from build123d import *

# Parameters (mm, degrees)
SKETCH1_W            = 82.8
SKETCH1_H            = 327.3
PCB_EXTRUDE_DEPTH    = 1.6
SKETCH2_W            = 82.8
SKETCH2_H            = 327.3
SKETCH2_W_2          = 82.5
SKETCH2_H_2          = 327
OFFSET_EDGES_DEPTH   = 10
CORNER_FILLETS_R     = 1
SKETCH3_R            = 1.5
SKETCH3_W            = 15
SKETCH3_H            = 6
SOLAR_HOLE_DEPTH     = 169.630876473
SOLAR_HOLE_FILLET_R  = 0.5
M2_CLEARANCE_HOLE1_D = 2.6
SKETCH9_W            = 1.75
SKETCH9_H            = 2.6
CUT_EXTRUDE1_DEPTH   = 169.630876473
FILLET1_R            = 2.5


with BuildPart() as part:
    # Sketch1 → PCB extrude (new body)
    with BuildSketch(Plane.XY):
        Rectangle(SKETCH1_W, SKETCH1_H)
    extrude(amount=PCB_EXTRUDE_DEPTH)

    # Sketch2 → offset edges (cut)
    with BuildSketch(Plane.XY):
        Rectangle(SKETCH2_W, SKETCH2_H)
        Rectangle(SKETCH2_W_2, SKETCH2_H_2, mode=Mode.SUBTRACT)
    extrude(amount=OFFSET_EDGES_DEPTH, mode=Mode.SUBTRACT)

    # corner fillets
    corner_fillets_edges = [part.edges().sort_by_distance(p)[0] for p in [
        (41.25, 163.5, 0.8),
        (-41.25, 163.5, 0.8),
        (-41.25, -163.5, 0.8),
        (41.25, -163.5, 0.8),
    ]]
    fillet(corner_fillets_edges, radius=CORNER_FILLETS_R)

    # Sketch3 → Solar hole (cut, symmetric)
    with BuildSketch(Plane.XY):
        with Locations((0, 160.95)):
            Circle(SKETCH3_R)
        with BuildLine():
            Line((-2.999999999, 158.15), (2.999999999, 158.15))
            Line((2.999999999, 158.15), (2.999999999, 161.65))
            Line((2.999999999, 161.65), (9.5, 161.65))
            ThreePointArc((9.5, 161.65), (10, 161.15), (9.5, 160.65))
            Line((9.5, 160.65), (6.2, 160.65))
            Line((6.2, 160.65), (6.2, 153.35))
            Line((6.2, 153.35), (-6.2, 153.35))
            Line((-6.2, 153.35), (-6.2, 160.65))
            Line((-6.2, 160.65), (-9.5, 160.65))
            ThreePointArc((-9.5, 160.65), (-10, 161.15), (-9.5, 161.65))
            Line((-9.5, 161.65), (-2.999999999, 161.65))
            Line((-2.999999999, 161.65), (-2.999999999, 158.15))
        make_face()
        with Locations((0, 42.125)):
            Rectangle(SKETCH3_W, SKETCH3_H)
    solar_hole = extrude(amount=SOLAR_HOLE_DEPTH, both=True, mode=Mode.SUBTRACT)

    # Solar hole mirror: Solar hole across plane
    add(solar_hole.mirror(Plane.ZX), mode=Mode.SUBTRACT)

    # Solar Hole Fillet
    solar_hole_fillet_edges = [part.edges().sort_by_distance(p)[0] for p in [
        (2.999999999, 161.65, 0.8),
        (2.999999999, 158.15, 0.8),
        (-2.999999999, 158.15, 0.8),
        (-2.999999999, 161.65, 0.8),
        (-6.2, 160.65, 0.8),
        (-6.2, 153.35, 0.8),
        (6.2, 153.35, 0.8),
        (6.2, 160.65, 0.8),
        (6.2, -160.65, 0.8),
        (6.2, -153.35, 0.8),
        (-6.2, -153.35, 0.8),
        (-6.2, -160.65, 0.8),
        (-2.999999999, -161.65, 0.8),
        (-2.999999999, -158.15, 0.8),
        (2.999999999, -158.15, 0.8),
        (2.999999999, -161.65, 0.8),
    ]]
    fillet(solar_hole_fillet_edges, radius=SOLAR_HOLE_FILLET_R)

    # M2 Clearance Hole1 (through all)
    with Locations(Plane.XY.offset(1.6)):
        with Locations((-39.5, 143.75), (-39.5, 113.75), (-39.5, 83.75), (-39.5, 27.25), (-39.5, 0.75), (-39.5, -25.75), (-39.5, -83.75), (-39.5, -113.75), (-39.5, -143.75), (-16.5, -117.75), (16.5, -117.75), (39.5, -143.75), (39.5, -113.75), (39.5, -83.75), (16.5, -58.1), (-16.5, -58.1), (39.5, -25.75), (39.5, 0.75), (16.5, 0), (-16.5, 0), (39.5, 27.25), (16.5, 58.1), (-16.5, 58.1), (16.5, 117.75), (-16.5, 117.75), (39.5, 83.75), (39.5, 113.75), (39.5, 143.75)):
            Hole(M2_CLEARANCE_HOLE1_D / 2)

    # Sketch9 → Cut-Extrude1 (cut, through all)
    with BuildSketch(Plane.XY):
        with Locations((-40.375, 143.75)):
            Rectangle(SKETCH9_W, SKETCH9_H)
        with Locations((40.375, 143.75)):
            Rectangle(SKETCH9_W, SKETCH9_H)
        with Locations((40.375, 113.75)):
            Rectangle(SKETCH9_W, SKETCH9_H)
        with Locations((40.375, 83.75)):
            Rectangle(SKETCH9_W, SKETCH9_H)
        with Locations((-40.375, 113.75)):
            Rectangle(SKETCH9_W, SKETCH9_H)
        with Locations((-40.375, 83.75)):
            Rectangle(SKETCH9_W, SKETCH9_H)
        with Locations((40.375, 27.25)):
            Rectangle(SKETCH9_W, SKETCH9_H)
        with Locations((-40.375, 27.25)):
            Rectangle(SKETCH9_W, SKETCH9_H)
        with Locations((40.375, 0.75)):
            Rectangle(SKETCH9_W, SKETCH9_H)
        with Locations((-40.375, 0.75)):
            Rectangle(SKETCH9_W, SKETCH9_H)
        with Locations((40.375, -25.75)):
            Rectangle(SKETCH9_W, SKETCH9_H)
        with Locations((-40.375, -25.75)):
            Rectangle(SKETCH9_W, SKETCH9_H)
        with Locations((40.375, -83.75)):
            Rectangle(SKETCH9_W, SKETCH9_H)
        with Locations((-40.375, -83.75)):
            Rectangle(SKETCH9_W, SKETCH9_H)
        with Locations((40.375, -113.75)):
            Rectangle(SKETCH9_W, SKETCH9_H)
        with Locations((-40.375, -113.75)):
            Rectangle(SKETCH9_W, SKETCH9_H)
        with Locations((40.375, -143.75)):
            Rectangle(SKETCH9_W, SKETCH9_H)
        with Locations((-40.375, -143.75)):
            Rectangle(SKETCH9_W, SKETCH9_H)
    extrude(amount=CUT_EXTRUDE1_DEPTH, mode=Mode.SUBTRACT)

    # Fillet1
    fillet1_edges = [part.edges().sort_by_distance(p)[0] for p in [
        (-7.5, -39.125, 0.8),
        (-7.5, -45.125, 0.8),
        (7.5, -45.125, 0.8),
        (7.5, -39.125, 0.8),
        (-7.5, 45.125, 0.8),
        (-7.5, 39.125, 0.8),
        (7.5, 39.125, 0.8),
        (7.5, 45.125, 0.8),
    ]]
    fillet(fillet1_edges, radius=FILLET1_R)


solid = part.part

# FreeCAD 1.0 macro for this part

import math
import FreeCAD as App
import Part
import Sketcher
from FreeCAD import Vector
Q = App.Units.Quantity


def edges_at(feature, points):
    """Names of the edges that pass closest to the given points."""
    edges = feature.Shape.Edges
    near = lambda p: min(range(len(edges)), key=lambda i: edges[i].distToShape(Part.Vertex(*p))[0])
    return sorted({f"Edge{near(p) + 1}" for p in points})


def add_polygon(sketch, points):
    """Adds a closed chain of lines whose ends are joined by coincident constraints."""
    first, n = sketch.GeometryCount, len(points)
    for a, b in zip(points, points[1:] + points[:1]):
        sketch.addGeometry(Part.LineSegment(App.Vector(*a, 0), App.Vector(*b, 0)), False)
    for i in range(n):
        sketch.addConstraint(Sketcher.Constraint("Coincident", first + i, 2, first + (i + 1) % n, 1))

doc = App.newDocument("Part")
body = doc.addObject("PartDesign::Body", "Body")

# Sketch on XY plane
sketch1 = body.newObject("Sketcher::SketchObject", "Sketch")
sketch1.AttachmentSupport = (doc.getObject("XY_Plane"), [""])
sketch1.MapMode = "FlatFace"
add_polygon(sketch1, [(-41, 164), (-41, -164), (41, -164), (41, 164)])  # lines 0-3
sketch1.addConstraint([
    Sketcher.Constraint("Vertical", 0),
    Sketcher.Constraint("Horizontal", 1),
    Sketcher.Constraint("Vertical", 2),
    Sketcher.Constraint("Horizontal", 3),
    Sketcher.Constraint("Symmetric", 0, 2, 2, 2, -1, 1),
    Sketcher.Constraint("DistanceX", 1, 1, 1, 2, Q("82.8 mm")),
    Sketcher.Constraint("DistanceY", 0, 2, 0, 1, Q("327.3 mm")),
])
pad1 = body.newObject("PartDesign::Pad", "Pad")
pad1.Profile = sketch1
pad1.Length = 1.6

# Sketch on XY plane
sketch2 = body.newObject("Sketcher::SketchObject", "Sketch001")
sketch2.AttachmentSupport = (doc.getObject("XY_Plane"), [""])
sketch2.MapMode = "FlatFace"
add_polygon(sketch2, [(-41, 164), (-41, -164), (41, -164), (41, 164)])  # lines 0-3
add_polygon(sketch2, [(41, -164), (-41, -164), (-41, 164), (41, 164)])  # lines 4-7
sketch2.addConstraint([
    Sketcher.Constraint("Vertical", 0),
    Sketcher.Constraint("Horizontal", 1),
    Sketcher.Constraint("Vertical", 2),
    Sketcher.Constraint("Horizontal", 3),
    Sketcher.Constraint("Horizontal", 4),
    Sketcher.Constraint("Vertical", 5),
    Sketcher.Constraint("Horizontal", 6),
    Sketcher.Constraint("Vertical", 7),
    Sketcher.Constraint("Symmetric", 0, 2, 2, 2, -1, 1),
    Sketcher.Constraint("Symmetric", 4, 2, 6, 2, -1, 1),
    Sketcher.Constraint("DistanceY", 5, 1, 5, 2, Q("327 mm")),
    Sketcher.Constraint("DistanceX", 1, 1, 1, 2, Q("82.8 mm")),
    Sketcher.Constraint("DistanceX", 4, 2, 4, 1, Q("82.5 mm")),
    Sketcher.Constraint("DistanceY", 0, 2, 0, 1, Q("327.3 mm")),
])
pocket1 = body.newObject("PartDesign::Pocket", "Pocket")
pocket1.Profile = sketch2
pocket1.Length = 10
pocket1.Reversed = True
doc.recompute()

fillet = body.newObject("PartDesign::Fillet", "Fillet")
fillet.Base = (pocket1, edges_at(pocket1, [
    (41.25, 163.5, 0.8),
    (-41.25, 163.5, 0.8),
    (-41.25, -163.5, 0.8),
    (41.25, -163.5, 0.8),
]))
fillet.Radius = 1

# Sketch on XY plane
sketch3 = body.newObject("Sketcher::SketchObject", "Sketch002")
sketch3.AttachmentSupport = (doc.getObject("XY_Plane"), [""])
sketch3.MapMode = "FlatFace"
sketch3.addGeometry(Part.Circle(Vector(0, 160.9, 0), Vector(0, 0, 1), 1.5), False)  # 0
sketch3.addGeometry(Part.LineSegment(Vector(3, 158.2, 0), Vector(-3, 158.2, 0)), False)  # 1
sketch3.addGeometry(Part.LineSegment(Vector(-3, 158.2, 0), Vector(-3, 161.7, 0)), False)  # 2
sketch3.addGeometry(Part.LineSegment(Vector(-3, 161.7, 0), Vector(-9.5, 161.7, 0)), False)  # 3
sketch3.addGeometry(Part.ArcOfCircle(Part.Circle(Vector(-9.5, 161.2, 0), Vector(0, 0, 1), 0.5), math.radians(90), math.radians(270)), False)  # 4
sketch3.addGeometry(Part.LineSegment(Vector(-9.5, 160.7, 0), Vector(-6.2, 160.7, 0)), False)  # 5
sketch3.addGeometry(Part.LineSegment(Vector(-6.2, 160.7, 0), Vector(-6.2, 153.3, 0)), False)  # 6
sketch3.addGeometry(Part.LineSegment(Vector(-6.2, 153.3, 0), Vector(6.2, 153.3, 0)), False)  # 7
sketch3.addGeometry(Part.LineSegment(Vector(6.2, 153.3, 0), Vector(6.2, 160.7, 0)), False)  # 8
sketch3.addGeometry(Part.LineSegment(Vector(6.2, 160.7, 0), Vector(9.5, 160.7, 0)), False)  # 9
sketch3.addGeometry(Part.ArcOfCircle(Part.Circle(Vector(9.5, 161.2, 0), Vector(0, 0, 1), 0.5), math.radians(-90), math.radians(90)), False)  # 10
sketch3.addGeometry(Part.LineSegment(Vector(9.5, 161.7, 0), Vector(3, 161.7, 0)), False)  # 11
sketch3.addGeometry(Part.LineSegment(Vector(3, 161.7, 0), Vector(3, 158.2, 0)), False)  # 12
add_polygon(sketch3, [(-7.5, 45.1), (-7.5, 39.1), (7.5, 39.1), (7.5, 45.1)])  # lines 13-16
sketch3.addConstraint([
    Sketcher.Constraint("Coincident", 1, 2, 2, 1),
    Sketcher.Constraint("Coincident", 2, 2, 3, 1),
    Sketcher.Constraint("Tangent", 3, 2, 4, 1),
    Sketcher.Constraint("Tangent", 4, 2, 5, 1),
    Sketcher.Constraint("Coincident", 5, 2, 6, 1),
    Sketcher.Constraint("Coincident", 6, 2, 7, 1),
    Sketcher.Constraint("Coincident", 7, 2, 8, 1),
    Sketcher.Constraint("Coincident", 8, 2, 9, 1),
    Sketcher.Constraint("Tangent", 9, 2, 10, 1),
    Sketcher.Constraint("Tangent", 10, 2, 11, 1),
    Sketcher.Constraint("Coincident", 11, 2, 12, 1),
    Sketcher.Constraint("Coincident", 12, 2, 1, 1),
    Sketcher.Constraint("Horizontal", 1),
    Sketcher.Constraint("Vertical", 2),
    Sketcher.Constraint("Horizontal", 3),
    Sketcher.Constraint("Horizontal", 5),
    Sketcher.Constraint("Vertical", 6),
    Sketcher.Constraint("Horizontal", 7),
    Sketcher.Constraint("Vertical", 8),
    Sketcher.Constraint("Horizontal", 9),
    Sketcher.Constraint("Horizontal", 11),
    Sketcher.Constraint("Vertical", 12),
    Sketcher.Constraint("Vertical", 13),
    Sketcher.Constraint("Horizontal", 14),
    Sketcher.Constraint("Vertical", 15),
    Sketcher.Constraint("Horizontal", 16),
    Sketcher.Constraint("Equal", 4, 10),
    Sketcher.Constraint("Symmetric", 4, 3, 10, 3, -2),
    Sketcher.Constraint("PointOnObject", 0, 3, -2),
    Sketcher.Constraint("Equal", 5, 9),
    Sketcher.Constraint("Equal", 3, 11),
    Sketcher.Constraint("Equal", 1, 13),
    Sketcher.Constraint("Diameter", 0, Q("3 mm")),
    Sketcher.Constraint("Radius", 4, Q("0.5 mm")),
    Sketcher.Constraint("DistanceX", 1, 2, 1, 1, Q("6 mm")),
    Sketcher.Constraint("DistanceX", 14, 1, 14, 2, Q("15 mm")),
    Sketcher.Constraint("DistanceX", 3, 2, 3, 1, Q("6.5 mm")),
    Sketcher.Constraint("DistanceX", 5, 1, 5, 2, Q("3.3 mm")),
    Sketcher.Constraint("DistanceY", 2, 1, 2, 2, Q("3.5 mm")),
    Sketcher.Constraint("DistanceY", 6, 2, 6, 1, Q("7.3 mm")),
    Sketcher.Constraint("DistanceX", 13, 2, -1, 1, Q("7.5 mm")),
    Sketcher.Constraint("DistanceY", 0, 3, 4, 3, Q("0.2 mm")),
    Sketcher.Constraint("DistanceY", -1, 1, 0, 3, Q("160.95 mm")),
    Sketcher.Constraint("DistanceY", -1, 1, 13, 2, Q("39.125 mm")),
])
pocket2 = body.newObject("PartDesign::Pocket", "Pocket001")
pocket2.Profile = sketch3
pocket2.Length = 339.261753
pocket2.Midplane = True
doc.recompute()

mirrored = body.newObject("PartDesign::Mirrored", "Mirrored")
mirrored.Originals = [pocket2]
mirrored.MirrorPlane = (doc.getObject("XZ_Plane"), [""])
body.Tip = mirrored
doc.recompute()

fillet2 = body.newObject("PartDesign::Fillet", "Fillet001")
fillet2.Base = (mirrored, edges_at(mirrored, [
    (3, 161.65, 0.8),
    (3, 158.15, 0.8),
    (-3, 158.15, 0.8),
    (-3, 161.65, 0.8),
    (-6.2, 160.65, 0.8),
    (-6.2, 153.35, 0.8),
    (6.2, 153.35, 0.8),
    (6.2, 160.65, 0.8),
    (6.2, -160.65, 0.8),
    (6.2, -153.35, 0.8),
    (-6.2, -153.35, 0.8),
    (-6.2, -160.65, 0.8),
    (-3, -161.65, 0.8),
    (-3, -158.15, 0.8),
    (3, -158.15, 0.8),
    (3, -161.65, 0.8),
]))
fillet2.Radius = 0.5

# Sketch on XY plane
sketch4 = body.newObject("Sketcher::SketchObject", "Sketch003")
sketch4.AttachmentSupport = (doc.getObject("XY_Plane"), [""])
sketch4.MapMode = "FlatFace"
sketch4.AttachmentOffset = App.Placement(Vector(0, 0, 1.6), App.Rotation())
sketch4.addGeometry([
    Part.Circle(Vector(-39.5, 143.8, 0), Vector(0, 0, 1), 1.3),  # 0
    Part.Circle(Vector(-39.5, 113.8, 0), Vector(0, 0, 1), 1.3),  # 1
    Part.Circle(Vector(-39.5, 83.8, 0), Vector(0, 0, 1), 1.3),  # 2
    Part.Circle(Vector(-39.5, 27.2, 0), Vector(0, 0, 1), 1.3),  # 3
    Part.Circle(Vector(-39.5, 0.8, 0), Vector(0, 0, 1), 1.3),  # 4
    Part.Circle(Vector(-39.5, -25.8, 0), Vector(0, 0, 1), 1.3),  # 5
    Part.Circle(Vector(-39.5, -83.8, 0), Vector(0, 0, 1), 1.3),  # 6
    Part.Circle(Vector(-39.5, -113.8, 0), Vector(0, 0, 1), 1.3),  # 7
    Part.Circle(Vector(-39.5, -143.8, 0), Vector(0, 0, 1), 1.3),  # 8
    Part.Circle(Vector(-16.5, -117.8, 0), Vector(0, 0, 1), 1.3),  # 9
    Part.Circle(Vector(16.5, -117.8, 0), Vector(0, 0, 1), 1.3),  # 10
    Part.Circle(Vector(39.5, -143.8, 0), Vector(0, 0, 1), 1.3),  # 11
    Part.Circle(Vector(39.5, -113.8, 0), Vector(0, 0, 1), 1.3),  # 12
    Part.Circle(Vector(39.5, -83.8, 0), Vector(0, 0, 1), 1.3),  # 13
    Part.Circle(Vector(16.5, -58.1, 0), Vector(0, 0, 1), 1.3),  # 14
    Part.Circle(Vector(-16.5, -58.1, 0), Vector(0, 0, 1), 1.3),  # 15
    Part.Circle(Vector(39.5, -25.8, 0), Vector(0, 0, 1), 1.3),  # 16
    Part.Circle(Vector(39.5, 0.8, 0), Vector(0, 0, 1), 1.3),  # 17
    Part.Circle(Vector(16.5, 0, 0), Vector(0, 0, 1), 1.3),  # 18
    Part.Circle(Vector(-16.5, 0, 0), Vector(0, 0, 1), 1.3),  # 19
    Part.Circle(Vector(39.5, 27.2, 0), Vector(0, 0, 1), 1.3),  # 20
    Part.Circle(Vector(16.5, 58.1, 0), Vector(0, 0, 1), 1.3),  # 21
    Part.Circle(Vector(-16.5, 58.1, 0), Vector(0, 0, 1), 1.3),  # 22
    Part.Circle(Vector(16.5, 117.8, 0), Vector(0, 0, 1), 1.3),  # 23
    Part.Circle(Vector(-16.5, 117.8, 0), Vector(0, 0, 1), 1.3),  # 24
    Part.Circle(Vector(39.5, 83.8, 0), Vector(0, 0, 1), 1.3),  # 25
    Part.Circle(Vector(39.5, 113.8, 0), Vector(0, 0, 1), 1.3),  # 26
    Part.Circle(Vector(39.5, 143.8, 0), Vector(0, 0, 1), 1.3),  # 27
], False)
sketch4.addConstraint([
    Sketcher.Constraint("Equal", 0, 1),
    Sketcher.Constraint("Equal", 1, 2),
    Sketcher.Constraint("Equal", 2, 3),
    Sketcher.Constraint("Equal", 3, 4),
    Sketcher.Constraint("Equal", 4, 5),
    Sketcher.Constraint("Equal", 5, 6),
    Sketcher.Constraint("Equal", 6, 7),
    Sketcher.Constraint("Equal", 7, 8),
    Sketcher.Constraint("Equal", 8, 9),
    Sketcher.Constraint("Equal", 9, 10),
    Sketcher.Constraint("Equal", 10, 11),
    Sketcher.Constraint("Equal", 11, 12),
    Sketcher.Constraint("Equal", 12, 13),
    Sketcher.Constraint("Equal", 13, 14),
    Sketcher.Constraint("Equal", 14, 15),
    Sketcher.Constraint("Equal", 15, 16),
    Sketcher.Constraint("Equal", 16, 17),
    Sketcher.Constraint("Equal", 17, 18),
    Sketcher.Constraint("Equal", 18, 19),
    Sketcher.Constraint("Equal", 19, 20),
    Sketcher.Constraint("Equal", 20, 21),
    Sketcher.Constraint("Equal", 21, 22),
    Sketcher.Constraint("Equal", 22, 23),
    Sketcher.Constraint("Equal", 23, 24),
    Sketcher.Constraint("Equal", 24, 25),
    Sketcher.Constraint("Equal", 25, 26),
    Sketcher.Constraint("Equal", 26, 27),
    Sketcher.Constraint("Symmetric", 0, 3, 11, 3, -1, 1),
    Sketcher.Constraint("Symmetric", 1, 3, 12, 3, -1, 1),
    Sketcher.Constraint("Symmetric", 2, 3, 13, 3, -1, 1),
    Sketcher.Constraint("Symmetric", 18, 3, 19, 3, -1, 1),
    Sketcher.Constraint("Symmetric", 15, 3, 21, 3, -1, 1),
    Sketcher.Constraint("Symmetric", 14, 3, 22, 3, -1, 1),
    Sketcher.Constraint("Symmetric", 9, 3, 23, 3, -1, 1),
    Sketcher.Constraint("Symmetric", 10, 3, 24, 3, -1, 1),
    Sketcher.Constraint("Symmetric", 6, 3, 25, 3, -1, 1),
    Sketcher.Constraint("Symmetric", 7, 3, 26, 3, -1, 1),
    Sketcher.Constraint("Symmetric", 8, 3, 27, 3, -1, 1),
    Sketcher.Constraint("Symmetric", 9, 3, 10, 3, -2),
    Sketcher.Constraint("Symmetric", 8, 3, 11, 3, -2),
    Sketcher.Constraint("Symmetric", 7, 3, 12, 3, -2),
    Sketcher.Constraint("Symmetric", 6, 3, 13, 3, -2),
    Sketcher.Constraint("Symmetric", 14, 3, 15, 3, -2),
    Sketcher.Constraint("Symmetric", 5, 3, 16, 3, -2),
    Sketcher.Constraint("Symmetric", 4, 3, 17, 3, -2),
    Sketcher.Constraint("Symmetric", 3, 3, 20, 3, -2),
    Sketcher.Constraint("PointOnObject", 18, 3, -1),
    Sketcher.Constraint("Vertical", 0, 3, 1, 3),
    Sketcher.Constraint("Vertical", 1, 3, 2, 3),
    Sketcher.Constraint("Vertical", 2, 3, 3, 3),
    Sketcher.Constraint("Vertical", 3, 3, 4, 3),
    Sketcher.Constraint("Vertical", 4, 3, 5, 3),
    Sketcher.Constraint("Vertical", 10, 3, 14, 3),
    Sketcher.Constraint("Vertical", 14, 3, 18, 3),
    Sketcher.Constraint("Diameter", 0, Q("2.6 mm")),
    Sketcher.Constraint("DistanceY", 1, 3, 0, 3, Q("30 mm")),
    Sketcher.Constraint("DistanceY", 2, 3, 1, 3, Q("30 mm")),
    Sketcher.Constraint("DistanceY", 4, 3, 2, 3, Q("83 mm")),
    Sketcher.Constraint("DistanceY", 5, 3, 3, 3, Q("53 mm")),
    Sketcher.Constraint("DistanceY", 6, 3, 5, 3, Q("58 mm")),
    Sketcher.Constraint("DistanceX", 7, 3, 9, 3, Q("23 mm")),
    Sketcher.Constraint("DistanceY", 9, 3, 7, 3, Q("4 mm")),
    Sketcher.Constraint("DistanceX", 9, 3, 10, 3, Q("33 mm")),
    Sketcher.Constraint("DistanceY", 14, 3, -1, 1, Q("58.1 mm")),
    Sketcher.Constraint("DistanceY", 3, 3, 2, 3, Q("56.5 mm")),
])
doc.recompute()
hole = body.newObject("PartDesign::Hole", "Hole")
hole.Profile = sketch4
hole.ThreadType = "None"
hole.Diameter = 2.6
hole.DepthType = "ThroughAll"

# Sketch on XY plane
sketch5 = body.newObject("Sketcher::SketchObject", "Sketch004")
sketch5.AttachmentSupport = (doc.getObject("XY_Plane"), [""])
sketch5.MapMode = "FlatFace"
add_polygon(sketch5, [(-41.2, 145.1), (-41.2, 142.4), (-39.5, 142.4), (-39.5, 145.1)])  # lines 0-3
add_polygon(sketch5, [(39.5, 145.1), (39.5, 142.4), (41.2, 142.4), (41.2, 145.1)])  # lines 4-7
add_polygon(sketch5, [(39.5, 115), (39.5, 112.5), (41.2, 112.5), (41.2, 115)])  # lines 8-11
add_polygon(sketch5, [(39.5, 85), (39.5, 82.5), (41.2, 82.5), (41.2, 85)])  # lines 12-15
add_polygon(sketch5, [(-41.2, 115), (-41.2, 112.5), (-39.5, 112.5), (-39.5, 115)])  # lines 16-19
add_polygon(sketch5, [(-41.2, 85), (-41.2, 82.5), (-39.5, 82.5), (-39.5, 85)])  # lines 20-23
add_polygon(sketch5, [(39.5, 28.6), (39.5, 25.9), (41.2, 25.9), (41.2, 28.6)])  # lines 24-27
add_polygon(sketch5, [(-41.2, 28.6), (-41.2, 25.9), (-39.5, 25.9), (-39.5, 28.6)])  # lines 28-31
add_polygon(sketch5, [(39.5, 2), (39.5, -0.6), (41.2, -0.6), (41.2, 2)])  # lines 32-35
add_polygon(sketch5, [(-41.2, 2), (-41.2, -0.6), (-39.5, -0.6), (-39.5, 2)])  # lines 36-39
add_polygon(sketch5, [(39.5, -24.4), (39.5, -27.1), (41.2, -27.1), (41.2, -24.4)])  # lines 40-43
add_polygon(sketch5, [(-41.2, -24.4), (-41.2, -27.1), (-39.5, -27.1), (-39.5, -24.4)])  # lines 44-47
add_polygon(sketch5, [(39.5, -82.5), (39.5, -85), (41.2, -85), (41.2, -82.5)])  # lines 48-51
add_polygon(sketch5, [(-41.2, -82.5), (-41.2, -85), (-39.5, -85), (-39.5, -82.5)])  # lines 52-55
add_polygon(sketch5, [(39.5, -112.5), (39.5, -115), (41.2, -115), (41.2, -112.5)])  # lines 56-59
add_polygon(sketch5, [(-41.2, -112.5), (-41.2, -115), (-39.5, -115), (-39.5, -112.5)])  # lines 60-63
add_polygon(sketch5, [(39.5, -142.4), (39.5, -145.1), (41.2, -145.1), (41.2, -142.4)])  # lines 64-67
add_polygon(sketch5, [(-41.2, -142.4), (-41.2, -145.1), (-39.5, -145.1), (-39.5, -142.4)])  # lines 68-71
sketch5.addConstraint([
    Sketcher.Constraint("Vertical", 0),
    Sketcher.Constraint("Horizontal", 1),
    Sketcher.Constraint("Vertical", 2),
    Sketcher.Constraint("Horizontal", 3),
    Sketcher.Constraint("Vertical", 4),
    Sketcher.Constraint("Horizontal", 5),
    Sketcher.Constraint("Vertical", 6),
    Sketcher.Constraint("Horizontal", 7),
    Sketcher.Constraint("Vertical", 8),
    Sketcher.Constraint("Horizontal", 9),
    Sketcher.Constraint("Vertical", 10),
    Sketcher.Constraint("Horizontal", 11),
    Sketcher.Constraint("Vertical", 12),
    Sketcher.Constraint("Horizontal", 13),
    Sketcher.Constraint("Vertical", 14),
    Sketcher.Constraint("Horizontal", 15),
    Sketcher.Constraint("Vertical", 16),
    Sketcher.Constraint("Horizontal", 17),
    Sketcher.Constraint("Vertical", 18),
    Sketcher.Constraint("Horizontal", 19),
    Sketcher.Constraint("Vertical", 20),
    Sketcher.Constraint("Horizontal", 21),
    Sketcher.Constraint("Vertical", 22),
    Sketcher.Constraint("Horizontal", 23),
    Sketcher.Constraint("Vertical", 24),
    Sketcher.Constraint("Horizontal", 25),
    Sketcher.Constraint("Vertical", 26),
    Sketcher.Constraint("Horizontal", 27),
    Sketcher.Constraint("Vertical", 28),
    Sketcher.Constraint("Horizontal", 29),
    Sketcher.Constraint("Vertical", 30),
    Sketcher.Constraint("Horizontal", 31),
    Sketcher.Constraint("Vertical", 32),
    Sketcher.Constraint("Horizontal", 33),
    Sketcher.Constraint("Vertical", 34),
    Sketcher.Constraint("Horizontal", 35),
    Sketcher.Constraint("Vertical", 36),
    Sketcher.Constraint("Horizontal", 37),
    Sketcher.Constraint("Vertical", 38),
    Sketcher.Constraint("Horizontal", 39),
    Sketcher.Constraint("Vertical", 40),
    Sketcher.Constraint("Horizontal", 41),
    Sketcher.Constraint("Vertical", 42),
    Sketcher.Constraint("Horizontal", 43),
    Sketcher.Constraint("Vertical", 44),
    Sketcher.Constraint("Horizontal", 45),
    Sketcher.Constraint("Vertical", 46),
    Sketcher.Constraint("Horizontal", 47),
    Sketcher.Constraint("Vertical", 48),
    Sketcher.Constraint("Horizontal", 49),
    Sketcher.Constraint("Vertical", 50),
    Sketcher.Constraint("Horizontal", 51),
    Sketcher.Constraint("Vertical", 52),
    Sketcher.Constraint("Horizontal", 53),
    Sketcher.Constraint("Vertical", 54),
    Sketcher.Constraint("Horizontal", 55),
    Sketcher.Constraint("Vertical", 56),
    Sketcher.Constraint("Horizontal", 57),
    Sketcher.Constraint("Vertical", 58),
    Sketcher.Constraint("Horizontal", 59),
    Sketcher.Constraint("Vertical", 60),
    Sketcher.Constraint("Horizontal", 61),
    Sketcher.Constraint("Vertical", 62),
    Sketcher.Constraint("Horizontal", 63),
    Sketcher.Constraint("Vertical", 64),
    Sketcher.Constraint("Horizontal", 65),
    Sketcher.Constraint("Vertical", 66),
    Sketcher.Constraint("Horizontal", 67),
    Sketcher.Constraint("Vertical", 68),
    Sketcher.Constraint("Horizontal", 69),
    Sketcher.Constraint("Vertical", 70),
    Sketcher.Constraint("Horizontal", 71),
    Sketcher.Constraint("Symmetric", 22, 2, 48, 2, -1, 1),
    Sketcher.Constraint("Symmetric", 20, 2, 50, 2, -1, 1),
    Sketcher.Constraint("Symmetric", 14, 2, 52, 2, -1, 1),
    Sketcher.Constraint("Symmetric", 12, 2, 54, 2, -1, 1),
    Sketcher.Constraint("Symmetric", 18, 2, 56, 2, -1, 1),
    Sketcher.Constraint("Symmetric", 16, 2, 58, 2, -1, 1),
    Sketcher.Constraint("Symmetric", 10, 2, 60, 2, -1, 1),
    Sketcher.Constraint("Symmetric", 8, 2, 62, 2, -1, 1),
    Sketcher.Constraint("Symmetric", 2, 2, 64, 2, -1, 1),
    Sketcher.Constraint("Symmetric", 0, 2, 66, 2, -1, 1),
    Sketcher.Constraint("Symmetric", 6, 2, 68, 2, -1, 1),
    Sketcher.Constraint("Symmetric", 4, 2, 70, 2, -1, 1),
    Sketcher.Constraint("Symmetric", 1, 2, 4, 2, -2),
    Sketcher.Constraint("Symmetric", 3, 2, 6, 2, -2),
    Sketcher.Constraint("Symmetric", 9, 2, 16, 2, -2),
    Sketcher.Constraint("Symmetric", 11, 2, 18, 2, -2),
    Sketcher.Constraint("Symmetric", 13, 2, 20, 2, -2),
    Sketcher.Constraint("Symmetric", 15, 2, 22, 2, -2),
    Sketcher.Constraint("Symmetric", 25, 2, 28, 2, -2),
    Sketcher.Constraint("Symmetric", 27, 2, 30, 2, -2),
    Sketcher.Constraint("Symmetric", 33, 2, 36, 2, -2),
    Sketcher.Constraint("Symmetric", 35, 2, 38, 2, -2),
    Sketcher.Constraint("Symmetric", 41, 2, 44, 2, -2),
    Sketcher.Constraint("Symmetric", 43, 2, 46, 2, -2),
    Sketcher.Constraint("Vertical", 7, 2, 8, 2),
    Sketcher.Constraint("Vertical", 6, 2, 9, 2),
    Sketcher.Constraint("Vertical", 11, 2, 12, 2),
    Sketcher.Constraint("Vertical", 10, 2, 13, 2),
    Sketcher.Constraint("Vertical", 15, 2, 24, 2),
    Sketcher.Constraint("Vertical", 14, 2, 25, 2),
    Sketcher.Constraint("Vertical", 27, 2, 32, 2),
    Sketcher.Constraint("Vertical", 26, 2, 33, 2),
    Sketcher.Constraint("Vertical", 35, 2, 40, 2),
    Sketcher.Constraint("Vertical", 34, 2, 41, 2),
    Sketcher.Constraint("Equal", 6, 8),
    Sketcher.Constraint("Equal", 10, 12),
    Sketcher.Constraint("Equal", 22, 24),
    Sketcher.Constraint("Equal", 30, 32),
    Sketcher.Constraint("Equal", 38, 40),
    Sketcher.Constraint("DistanceY", 0, 2, 0, 1, Q("2.6 mm")),
    Sketcher.Constraint("DistanceX", 1, 1, 1, 2, Q("1.75 mm")),
    Sketcher.Constraint("DistanceX", 1, 2, -1, 1, Q("39.5 mm")),
    Sketcher.Constraint("DistanceY", -1, 1, 0, 2, Q("142.45 mm")),
    Sketcher.Constraint("DistanceY", -1, 1, 8, 2, Q("112.45 mm")),
    Sketcher.Constraint("DistanceY", -1, 1, 12, 2, Q("82.45 mm")),
    Sketcher.Constraint("DistanceY", -1, 1, 24, 2, Q("25.95 mm")),
    Sketcher.Constraint("DistanceY", 32, 2, -1, 1, Q("0.55 mm")),
    Sketcher.Constraint("DistanceY", 40, 2, -1, 1, Q("27.05 mm")),
])
pocket3 = body.newObject("PartDesign::Pocket", "Pocket002")
pocket3.Profile = sketch5
pocket3.Type = "ThroughAll"
pocket3.Reversed = True
doc.recompute()

fillet3 = body.newObject("PartDesign::Fillet", "Fillet002")
fillet3.Base = (pocket3, edges_at(pocket3, [
    (-7.5, -39.125, 0.8),
    (-7.5, -45.125, 0.8),
    (7.5, -45.125, 0.8),
    (7.5, -39.125, 0.8),
    (-7.5, 45.125, 0.8),
    (-7.5, 39.125, 0.8),
    (7.5, 39.125, 0.8),
    (7.5, 45.125, 0.8),
]))
fillet3.Radius = 2.5

doc.recompute()
